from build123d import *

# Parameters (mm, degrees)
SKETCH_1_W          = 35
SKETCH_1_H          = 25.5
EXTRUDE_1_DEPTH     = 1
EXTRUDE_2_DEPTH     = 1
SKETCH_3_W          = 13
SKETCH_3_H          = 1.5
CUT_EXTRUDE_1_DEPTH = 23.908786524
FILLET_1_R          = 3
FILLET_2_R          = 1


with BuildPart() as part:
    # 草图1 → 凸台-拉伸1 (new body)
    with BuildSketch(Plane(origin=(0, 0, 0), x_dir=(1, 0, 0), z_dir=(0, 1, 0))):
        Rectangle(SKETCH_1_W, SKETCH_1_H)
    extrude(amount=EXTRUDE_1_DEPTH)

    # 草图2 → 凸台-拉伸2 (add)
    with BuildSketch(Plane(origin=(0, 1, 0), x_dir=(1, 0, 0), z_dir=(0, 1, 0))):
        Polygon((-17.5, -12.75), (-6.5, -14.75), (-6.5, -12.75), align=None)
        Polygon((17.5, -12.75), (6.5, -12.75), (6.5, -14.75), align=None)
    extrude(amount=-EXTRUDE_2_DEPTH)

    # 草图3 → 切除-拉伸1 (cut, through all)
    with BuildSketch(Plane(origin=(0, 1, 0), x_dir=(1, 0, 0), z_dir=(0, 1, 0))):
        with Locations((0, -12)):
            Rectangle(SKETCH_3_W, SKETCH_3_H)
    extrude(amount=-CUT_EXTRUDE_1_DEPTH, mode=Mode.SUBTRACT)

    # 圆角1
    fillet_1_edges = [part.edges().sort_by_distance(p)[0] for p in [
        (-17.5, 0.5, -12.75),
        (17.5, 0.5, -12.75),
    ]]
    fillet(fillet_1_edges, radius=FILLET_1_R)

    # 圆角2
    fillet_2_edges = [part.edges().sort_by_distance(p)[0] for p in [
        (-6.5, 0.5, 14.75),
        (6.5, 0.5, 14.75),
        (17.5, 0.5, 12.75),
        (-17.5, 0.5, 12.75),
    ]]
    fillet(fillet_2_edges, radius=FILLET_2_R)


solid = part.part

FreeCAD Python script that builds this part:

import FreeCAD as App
import Part
import Sketcher
from FreeCAD import Vector


def edges_at(feature, points):
    """Names of the edges that pass closest to the given points."""
    edges = feature.Shape.Edges
    near = lambda p: min(range(len(edges)), key=lambda i: edges[i].distToShape(Part.Vertex(*p))[0])
    return sorted({f"Edge{near(p) + 1}" for p in points})


def add_polygon(sketch, points):
    """Adds a closed chain of lines whose ends are joined by coincident constraints."""
    first, n = sketch.GeometryCount, len(points)
    for a, b in zip(points, points[1:] + points[:1]):
        sketch.addGeometry(Part.LineSegment(App.Vector(*a, 0), App.Vector(*b, 0)), False)
    for i in range(n):
        sketch.addConstraint(Sketcher.Constraint("Coincident", first + i, 2, first + (i + 1) % n, 1))

doc = App.newDocument("Part")
params = doc.addObject("Spreadsheet::Sheet", "Params")
for row, (alias, value) in enumerate([
    ("sketch1_width", "35 mm"),
    ("sketch1_height", "25.5 mm"),
    ("pad1_length", "1 mm"),
    ("sketch2_width", "11 mm"),
    ("sketch2_height", "2 mm"),
    ("pad2_length", "1 mm"),
    ("sketch3_width", "13 mm"),
    ("sketch3_height", "1.5 mm"),
    ("fillet_radius", "3 mm"),
    ("fillet2_radius", "1 mm"),
], start=1):
    params.set(f"A{row}", alias)
    params.set(f"B{row}", "=" + value)
    params.setAlias(f"B{row}", alias)

body = doc.addObject("PartDesign::Body", "Body")

# Sketch on XZ plane
sketch1 = body.newObject("Sketcher::SketchObject", "Sketch")
sketch1.AttachmentSupport = (doc.getObject("XZ_Plane"), [""])
sketch1.MapMode = "FlatFace"
add_polygon(sketch1, [(-17.5, -12.75), (-17.5, 12.75), (17.5, 12.75), (17.5, -12.75)])  # lines 0-3
sketch1.addConstraint(Sketcher.Constraint("Vertical", 0))
sketch1.addConstraint(Sketcher.Constraint("Horizontal", 1))
sketch1.addConstraint(Sketcher.Constraint("Vertical", 2))
sketch1.addConstraint(Sketcher.Constraint("Horizontal", 3))
sketch1.addConstraint(Sketcher.Constraint("Symmetric", 0, 2, 2, 2, -1, 1))
sketch1.addConstraint(Sketcher.Constraint("DistanceX", 1, 1, 1, 2, 35.0))
sketch1.addConstraint(Sketcher.Constraint("DistanceY", 0, 1, 0, 2, 25.5))
sketch1.setExpression("Constraints[9]", "Params.sketch1_width")
sketch1.setExpression("Constraints[10]", "Params.sketch1_height")
pad1 = body.newObject("PartDesign::Pad", "Pad")
pad1.Profile = sketch1
pad1.setExpression("Length", "Params.pad1_length")
pad1.Reversed = True

# Sketch on XZ plane
sketch2 = body.newObject("Sketcher::SketchObject", "Sketch001")
sketch2.AttachmentSupport = (doc.getObject("XZ_Plane"), [""])
sketch2.MapMode = "FlatFace"
sketch2.AttachmentOffset = App.Placement(Vector(0, 0, -1), App.Rotation())
add_polygon(sketch2, [(-17.5, 12.75), (-6.5, 14.75), (-6.5, 12.75)])  # lines 0-2
add_polygon(sketch2, [(17.5, 12.75), (6.5, 12.75), (6.5, 14.75)])  # lines 3-5
sketch2.addConstraint(Sketcher.Constraint("Vertical", 1))
sketch2.addConstraint(Sketcher.Constraint("Horizontal", 2))
sketch2.addConstraint(Sketcher.Constraint("Horizontal", 3))
sketch2.addConstraint(Sketcher.Constraint("Vertical", 4))
sketch2.addConstraint(Sketcher.Constraint("Symmetric", 1, 2, 3, 2, -2))
sketch2.addConstraint(Sketcher.Constraint("Horizontal", 0, 2, 4, 2))
sketch2.addConstraint(Sketcher.Constraint("Equal", 2, 3))
sketch2.addConstraint(Sketcher.Constraint("DistanceX", 2, 2, 2, 1, 11.0))
sketch2.addConstraint(Sketcher.Constraint("DistanceY", 1, 2, 1, 1, 2.0))
sketch2.addConstraint(Sketcher.Constraint("DistanceX", 1, 2, 3, 2, 13.0))
sketch2.addConstraint(Sketcher.Constraint("DistanceY", -1, 1, 0, 2, 14.75))
sketch2.setExpression("Constraints[13]", "Params.sketch2_width")
sketch2.setExpression("Constraints[14]", "Params.sketch2_height")
pad2 = body.newObject("PartDesign::Pad", "Pad001")
pad2.Profile = sketch2
pad2.setExpression("Length", "Params.pad2_length")

# Sketch on XZ plane
sketch3 = body.newObject("Sketcher::SketchObject", "Sketch002")
sketch3.AttachmentSupport = (doc.getObject("XZ_Plane"), [""])
sketch3.MapMode = "FlatFace"
sketch3.AttachmentOffset = App.Placement(Vector(0, 0, -1), App.Rotation())
add_polygon(sketch3, [(-6.5, 11.25), (-6.5, 12.75), (6.5, 12.75), (6.5, 11.25)])  # lines 0-3
sketch3.addConstraint(Sketcher.Constraint("Vertical", 0))
sketch3.addConstraint(Sketcher.Constraint("Horizontal", 1))
sketch3.addConstraint(Sketcher.Constraint("Vertical", 2))
sketch3.addConstraint(Sketcher.Constraint("Horizontal", 3))
sketch3.addConstraint(Sketcher.Constraint("DistanceX", 1, 1, 1, 2, 13.0))
sketch3.addConstraint(Sketcher.Constraint("DistanceY", 0, 1, 0, 2, 1.5))
sketch3.addConstraint(Sketcher.Constraint("DistanceX", 0, 2, -1, 1, 6.5))
sketch3.addConstraint(Sketcher.Constraint("DistanceY", -1, 1, 0, 2, 12.75))
sketch3.setExpression("Constraints[8]", "Params.sketch3_width")
sketch3.setExpression("Constraints[9]", "Params.sketch3_height")
pocket1 = body.newObject("PartDesign::Pocket", "Pocket")
pocket1.Profile = sketch3
pocket1.Type = "ThroughAll"
pocket1.Reversed = True
doc.recompute()

fillet = body.newObject("PartDesign::Fillet", "Fillet")
fillet.Base = (pocket1, edges_at(pocket1, [(-17.5, 0.5, -12.75), (17.5, 0.5, -12.75)]))
fillet.setExpression("Radius", "Params.fillet_radius")
doc.recompute()

fillet2 = body.newObject("PartDesign::Fillet", "Fillet001")
fillet2.Base = (fillet, edges_at(fillet, [
    (-6.5, 0.5, 14.75),
    (6.5, 0.5, 14.75),
    (17.5, 0.5, 12.75),
    (-17.5, 0.5, 12.75),
]))
fillet2.setExpression("Radius", "Params.fillet2_radius")

doc.recompute()
